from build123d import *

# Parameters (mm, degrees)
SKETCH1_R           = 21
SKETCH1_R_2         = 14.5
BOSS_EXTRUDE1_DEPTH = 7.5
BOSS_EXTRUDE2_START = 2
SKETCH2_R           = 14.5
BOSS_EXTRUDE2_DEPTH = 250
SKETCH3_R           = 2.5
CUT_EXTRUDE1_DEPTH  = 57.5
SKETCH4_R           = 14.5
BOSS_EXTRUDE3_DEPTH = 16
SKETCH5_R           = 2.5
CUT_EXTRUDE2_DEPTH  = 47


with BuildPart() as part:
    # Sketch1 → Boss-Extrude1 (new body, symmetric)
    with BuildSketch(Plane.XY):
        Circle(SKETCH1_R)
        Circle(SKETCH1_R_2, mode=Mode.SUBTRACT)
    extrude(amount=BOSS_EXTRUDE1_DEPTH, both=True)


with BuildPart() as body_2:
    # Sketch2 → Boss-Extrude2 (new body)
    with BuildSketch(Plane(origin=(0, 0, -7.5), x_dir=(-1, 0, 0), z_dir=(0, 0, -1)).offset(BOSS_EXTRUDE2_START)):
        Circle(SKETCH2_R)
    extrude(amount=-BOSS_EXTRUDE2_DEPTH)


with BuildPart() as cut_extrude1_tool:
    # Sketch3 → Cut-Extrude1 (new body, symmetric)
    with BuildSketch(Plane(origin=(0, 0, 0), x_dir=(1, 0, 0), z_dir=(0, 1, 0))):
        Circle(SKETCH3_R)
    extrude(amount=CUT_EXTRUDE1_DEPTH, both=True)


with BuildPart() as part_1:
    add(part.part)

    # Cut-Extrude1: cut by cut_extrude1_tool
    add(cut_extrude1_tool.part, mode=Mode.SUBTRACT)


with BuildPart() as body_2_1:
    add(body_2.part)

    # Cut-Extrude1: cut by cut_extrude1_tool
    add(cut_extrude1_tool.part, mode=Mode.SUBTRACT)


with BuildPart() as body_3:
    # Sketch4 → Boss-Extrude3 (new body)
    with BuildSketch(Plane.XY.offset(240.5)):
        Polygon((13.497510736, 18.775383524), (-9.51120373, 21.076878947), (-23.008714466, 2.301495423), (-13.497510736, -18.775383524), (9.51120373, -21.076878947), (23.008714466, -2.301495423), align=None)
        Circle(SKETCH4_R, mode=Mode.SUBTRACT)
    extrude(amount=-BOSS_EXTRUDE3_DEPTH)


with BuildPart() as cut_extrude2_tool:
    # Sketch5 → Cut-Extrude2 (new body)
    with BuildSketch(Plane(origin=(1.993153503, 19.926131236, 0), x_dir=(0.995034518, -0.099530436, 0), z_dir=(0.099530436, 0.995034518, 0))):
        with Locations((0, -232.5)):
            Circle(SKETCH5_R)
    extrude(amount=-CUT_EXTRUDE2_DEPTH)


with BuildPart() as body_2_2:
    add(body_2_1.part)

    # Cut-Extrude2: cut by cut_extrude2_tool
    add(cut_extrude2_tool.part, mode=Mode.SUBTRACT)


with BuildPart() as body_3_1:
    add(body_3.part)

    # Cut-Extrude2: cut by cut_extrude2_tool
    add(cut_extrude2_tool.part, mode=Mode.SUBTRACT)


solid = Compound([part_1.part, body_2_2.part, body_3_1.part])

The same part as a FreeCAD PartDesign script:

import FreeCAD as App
import Part
import Sketcher
from FreeCAD import Vector
Q = App.Units.Quantity

doc = App.newDocument("Part")
body = doc.addObject("PartDesign::Body", "Body")

# Sketch on XY plane
sketch1 = body.newObject("Sketcher::SketchObject", "Sketch")
sketch1.AttachmentSupport = (doc.getObject("XY_Plane"), [""])
sketch1.MapMode = "FlatFace"
sketch1.addGeometry([
    Part.Circle(Vector(0, 0, 0), Vector(0, 0, 1), 21),
    Part.Circle(Vector(0, 0, 0), Vector(0, 0, 1), 14.5),
], False)
sketch1.addConstraint([
    Sketcher.Constraint("Coincident", 0, 3, -1, 1),
    Sketcher.Constraint("Coincident", 1, 3, -1, 1),
    Sketcher.Constraint("Diameter", 0, Q("42 mm")),
    Sketcher.Constraint("Diameter", 1, Q("29 mm")),
])
pad1 = body.newObject("PartDesign::Pad", "Pad")
pad1.Profile = sketch1
pad1.Length = 15
pad1.Midplane = True
body2 = doc.addObject("PartDesign::Body", "Body001")

# Sketch on XY plane
sketch2 = body2.newObject("Sketcher::SketchObject", "Sketch001")
sketch2.AttachmentSupport = (doc.getObject("XY_Plane001"), [""])
sketch2.MapMode = "FlatFace"
sketch2.AttachmentOffset = App.Placement(Vector(0, 0, -9.5), App.Rotation())
sketch2.addGeometry(Part.Circle(Vector(0, 0, 0), Vector(0, 0, 1), 14.5), False)
sketch2.addConstraint([
    Sketcher.Constraint("Coincident", 0, 3, -1, 1),
    Sketcher.Constraint("Diameter", 0, Q("29 mm")),
])
pad2 = body2.newObject("PartDesign::Pad", "Pad001")
pad2.Profile = sketch2
pad2.Length = 250
body3 = doc.addObject("PartDesign::Body", "Body002")

# Sketch on XZ plane
sketch3 = body3.newObject("Sketcher::SketchObject", "Sketch002")
sketch3.AttachmentSupport = (doc.getObject("XZ_Plane002"), [""])
sketch3.MapMode = "FlatFace"
sketch3.addGeometry(Part.Circle(Vector(0, 0, 0), Vector(0, 0, 1), 2.5), False)
sketch3.addConstraint([
    Sketcher.Constraint("Coincident", 0, 3, -1, 1),
    Sketcher.Constraint("Diameter", 0, Q("5 mm")),
])
pad3 = body3.newObject("PartDesign::Pad", "Pad002")
pad3.Profile = sketch3
pad3.Length = 115
pad3.Midplane = True
doc.recompute()

body4 = doc.addObject("PartDesign::Body", "Body003")
body4.BaseFeature = body3
boolean = body.newObject("PartDesign::Boolean", "Boolean")
boolean.Type = "Cut"
boolean.addObjects([body4])
doc.recompute()

boolean2 = body2.newObject("PartDesign::Boolean", "Boolean001")
boolean2.Type = "Cut"
boolean2.addObjects([body3])
body5 = doc.addObject("PartDesign::Body", "Body004")

# Sketch on XY plane
sketch4 = body5.newObject("Sketcher::SketchObject", "Sketch003")
sketch4.AttachmentSupport = (doc.getObject("XY_Plane004"), [""])
sketch4.MapMode = "FlatFace"
sketch4.AttachmentOffset = App.Placement(Vector(0, 0, 240.5), App.Rotation())
sketch4.addGeometry([
    Part.LineSegment(Vector(13.497511, 18.775384, 0), Vector(-9.511204, 21.076879, 0)),  # 0
    Part.LineSegment(Vector(-9.511204, 21.076879, 0), Vector(-23.008714, 2.301495, 0)),  # 1
    Part.LineSegment(Vector(-23.008714, 2.301495, 0), Vector(-13.497511, -18.775384, 0)),  # 2
    Part.LineSegment(Vector(-13.497511, -18.775384, 0), Vector(9.511204, -21.076879, 0)),  # 3
    Part.LineSegment(Vector(9.511204, -21.076879, 0), Vector(23.008714, -2.301495, 0)),  # 4
    Part.LineSegment(Vector(23.008714, -2.301495, 0), Vector(13.497511, 18.775384, 0)),  # 5
    Part.Circle(Vector(0, 0, 0), Vector(0, 0, 1), 14.5),  # 6
], False)
sketch4.addConstraint([
    Sketcher.Constraint("Coincident", 0, 2, 1, 1),
    Sketcher.Constraint("Coincident", 1, 2, 2, 1),
    Sketcher.Constraint("Coincident", 2, 2, 3, 1),
    Sketcher.Constraint("Coincident", 3, 2, 4, 1),
    Sketcher.Constraint("Coincident", 4, 2, 5, 1),
    Sketcher.Constraint("Coincident", 5, 2, 0, 1),
    Sketcher.Constraint("Coincident", 6, 3, -1, 1),
    Sketcher.Constraint("Symmetric", 0, 2, 3, 2, -1, 1),
    Sketcher.Constraint("Symmetric", 1, 2, 4, 2, -1, 1),
    Sketcher.Constraint("Symmetric", 2, 2, 5, 2, -1, 1),
    Sketcher.Constraint("Equal", 0, 1),
    Sketcher.Constraint("Equal", 1, 2),
    Sketcher.Constraint("Diameter", 6, Q("29 mm")),
    Sketcher.Constraint("DistanceY", -1, 1, 0, 2, Q("21.076879 mm")),
    Sketcher.Constraint("DistanceX", 2, 2, -1, 1, Q("13.497511 mm")),
    Sketcher.Constraint("DistanceX", 1, 2, 0, 2, Q("13.497511 mm")),
    Sketcher.Constraint("DistanceY", 2, 2, 1, 2, Q("21.076879 mm")),
])
pad4 = body5.newObject("PartDesign::Pad", "Pad003")
pad4.Profile = sketch4
pad4.Length = 16
pad4.Reversed = True
body6 = doc.addObject("PartDesign::Body", "Body005")

# Sketch on an angled plane
sketch5 = body6.newObject("Sketcher::SketchObject", "Sketch004")
sketch5.Placement = App.Placement(Vector(1.993154, 19.926131, 0), App.Rotation(Vector(0.995034518, -0.099530436, 0), Vector(0, 0, -1), Vector(0.099530436, 0.995034518, 0), "ZXY"))
sketch5.addGeometry(Part.Circle(Vector(0, -232.5, 0), Vector(0, 0, 1), 2.5), False)
sketch5.addConstraint([
    Sketcher.Constraint("PointOnObject", 0, 3, -2),
    Sketcher.Constraint("Diameter", 0, Q("5 mm")),
    Sketcher.Constraint("DistanceY", 0, 3, -1, 1, Q("232.5 mm")),
])
pad5 = body6.newObject("PartDesign::Pad", "Pad004")
pad5.Profile = sketch5
pad5.Length = 47
pad5.Reversed = True
doc.recompute()

body7 = doc.addObject("PartDesign::Body", "Body006")
body7.BaseFeature = body6
boolean3 = body2.newObject("PartDesign::Boolean", "Boolean002")
boolean3.Type = "Cut"
boolean3.addObjects([body7])
doc.recompute()

boolean4 = body5.newObject("PartDesign::Boolean", "Boolean003")
boolean4.Type = "Cut"
boolean4.addObjects([body6])

doc.recompute()
